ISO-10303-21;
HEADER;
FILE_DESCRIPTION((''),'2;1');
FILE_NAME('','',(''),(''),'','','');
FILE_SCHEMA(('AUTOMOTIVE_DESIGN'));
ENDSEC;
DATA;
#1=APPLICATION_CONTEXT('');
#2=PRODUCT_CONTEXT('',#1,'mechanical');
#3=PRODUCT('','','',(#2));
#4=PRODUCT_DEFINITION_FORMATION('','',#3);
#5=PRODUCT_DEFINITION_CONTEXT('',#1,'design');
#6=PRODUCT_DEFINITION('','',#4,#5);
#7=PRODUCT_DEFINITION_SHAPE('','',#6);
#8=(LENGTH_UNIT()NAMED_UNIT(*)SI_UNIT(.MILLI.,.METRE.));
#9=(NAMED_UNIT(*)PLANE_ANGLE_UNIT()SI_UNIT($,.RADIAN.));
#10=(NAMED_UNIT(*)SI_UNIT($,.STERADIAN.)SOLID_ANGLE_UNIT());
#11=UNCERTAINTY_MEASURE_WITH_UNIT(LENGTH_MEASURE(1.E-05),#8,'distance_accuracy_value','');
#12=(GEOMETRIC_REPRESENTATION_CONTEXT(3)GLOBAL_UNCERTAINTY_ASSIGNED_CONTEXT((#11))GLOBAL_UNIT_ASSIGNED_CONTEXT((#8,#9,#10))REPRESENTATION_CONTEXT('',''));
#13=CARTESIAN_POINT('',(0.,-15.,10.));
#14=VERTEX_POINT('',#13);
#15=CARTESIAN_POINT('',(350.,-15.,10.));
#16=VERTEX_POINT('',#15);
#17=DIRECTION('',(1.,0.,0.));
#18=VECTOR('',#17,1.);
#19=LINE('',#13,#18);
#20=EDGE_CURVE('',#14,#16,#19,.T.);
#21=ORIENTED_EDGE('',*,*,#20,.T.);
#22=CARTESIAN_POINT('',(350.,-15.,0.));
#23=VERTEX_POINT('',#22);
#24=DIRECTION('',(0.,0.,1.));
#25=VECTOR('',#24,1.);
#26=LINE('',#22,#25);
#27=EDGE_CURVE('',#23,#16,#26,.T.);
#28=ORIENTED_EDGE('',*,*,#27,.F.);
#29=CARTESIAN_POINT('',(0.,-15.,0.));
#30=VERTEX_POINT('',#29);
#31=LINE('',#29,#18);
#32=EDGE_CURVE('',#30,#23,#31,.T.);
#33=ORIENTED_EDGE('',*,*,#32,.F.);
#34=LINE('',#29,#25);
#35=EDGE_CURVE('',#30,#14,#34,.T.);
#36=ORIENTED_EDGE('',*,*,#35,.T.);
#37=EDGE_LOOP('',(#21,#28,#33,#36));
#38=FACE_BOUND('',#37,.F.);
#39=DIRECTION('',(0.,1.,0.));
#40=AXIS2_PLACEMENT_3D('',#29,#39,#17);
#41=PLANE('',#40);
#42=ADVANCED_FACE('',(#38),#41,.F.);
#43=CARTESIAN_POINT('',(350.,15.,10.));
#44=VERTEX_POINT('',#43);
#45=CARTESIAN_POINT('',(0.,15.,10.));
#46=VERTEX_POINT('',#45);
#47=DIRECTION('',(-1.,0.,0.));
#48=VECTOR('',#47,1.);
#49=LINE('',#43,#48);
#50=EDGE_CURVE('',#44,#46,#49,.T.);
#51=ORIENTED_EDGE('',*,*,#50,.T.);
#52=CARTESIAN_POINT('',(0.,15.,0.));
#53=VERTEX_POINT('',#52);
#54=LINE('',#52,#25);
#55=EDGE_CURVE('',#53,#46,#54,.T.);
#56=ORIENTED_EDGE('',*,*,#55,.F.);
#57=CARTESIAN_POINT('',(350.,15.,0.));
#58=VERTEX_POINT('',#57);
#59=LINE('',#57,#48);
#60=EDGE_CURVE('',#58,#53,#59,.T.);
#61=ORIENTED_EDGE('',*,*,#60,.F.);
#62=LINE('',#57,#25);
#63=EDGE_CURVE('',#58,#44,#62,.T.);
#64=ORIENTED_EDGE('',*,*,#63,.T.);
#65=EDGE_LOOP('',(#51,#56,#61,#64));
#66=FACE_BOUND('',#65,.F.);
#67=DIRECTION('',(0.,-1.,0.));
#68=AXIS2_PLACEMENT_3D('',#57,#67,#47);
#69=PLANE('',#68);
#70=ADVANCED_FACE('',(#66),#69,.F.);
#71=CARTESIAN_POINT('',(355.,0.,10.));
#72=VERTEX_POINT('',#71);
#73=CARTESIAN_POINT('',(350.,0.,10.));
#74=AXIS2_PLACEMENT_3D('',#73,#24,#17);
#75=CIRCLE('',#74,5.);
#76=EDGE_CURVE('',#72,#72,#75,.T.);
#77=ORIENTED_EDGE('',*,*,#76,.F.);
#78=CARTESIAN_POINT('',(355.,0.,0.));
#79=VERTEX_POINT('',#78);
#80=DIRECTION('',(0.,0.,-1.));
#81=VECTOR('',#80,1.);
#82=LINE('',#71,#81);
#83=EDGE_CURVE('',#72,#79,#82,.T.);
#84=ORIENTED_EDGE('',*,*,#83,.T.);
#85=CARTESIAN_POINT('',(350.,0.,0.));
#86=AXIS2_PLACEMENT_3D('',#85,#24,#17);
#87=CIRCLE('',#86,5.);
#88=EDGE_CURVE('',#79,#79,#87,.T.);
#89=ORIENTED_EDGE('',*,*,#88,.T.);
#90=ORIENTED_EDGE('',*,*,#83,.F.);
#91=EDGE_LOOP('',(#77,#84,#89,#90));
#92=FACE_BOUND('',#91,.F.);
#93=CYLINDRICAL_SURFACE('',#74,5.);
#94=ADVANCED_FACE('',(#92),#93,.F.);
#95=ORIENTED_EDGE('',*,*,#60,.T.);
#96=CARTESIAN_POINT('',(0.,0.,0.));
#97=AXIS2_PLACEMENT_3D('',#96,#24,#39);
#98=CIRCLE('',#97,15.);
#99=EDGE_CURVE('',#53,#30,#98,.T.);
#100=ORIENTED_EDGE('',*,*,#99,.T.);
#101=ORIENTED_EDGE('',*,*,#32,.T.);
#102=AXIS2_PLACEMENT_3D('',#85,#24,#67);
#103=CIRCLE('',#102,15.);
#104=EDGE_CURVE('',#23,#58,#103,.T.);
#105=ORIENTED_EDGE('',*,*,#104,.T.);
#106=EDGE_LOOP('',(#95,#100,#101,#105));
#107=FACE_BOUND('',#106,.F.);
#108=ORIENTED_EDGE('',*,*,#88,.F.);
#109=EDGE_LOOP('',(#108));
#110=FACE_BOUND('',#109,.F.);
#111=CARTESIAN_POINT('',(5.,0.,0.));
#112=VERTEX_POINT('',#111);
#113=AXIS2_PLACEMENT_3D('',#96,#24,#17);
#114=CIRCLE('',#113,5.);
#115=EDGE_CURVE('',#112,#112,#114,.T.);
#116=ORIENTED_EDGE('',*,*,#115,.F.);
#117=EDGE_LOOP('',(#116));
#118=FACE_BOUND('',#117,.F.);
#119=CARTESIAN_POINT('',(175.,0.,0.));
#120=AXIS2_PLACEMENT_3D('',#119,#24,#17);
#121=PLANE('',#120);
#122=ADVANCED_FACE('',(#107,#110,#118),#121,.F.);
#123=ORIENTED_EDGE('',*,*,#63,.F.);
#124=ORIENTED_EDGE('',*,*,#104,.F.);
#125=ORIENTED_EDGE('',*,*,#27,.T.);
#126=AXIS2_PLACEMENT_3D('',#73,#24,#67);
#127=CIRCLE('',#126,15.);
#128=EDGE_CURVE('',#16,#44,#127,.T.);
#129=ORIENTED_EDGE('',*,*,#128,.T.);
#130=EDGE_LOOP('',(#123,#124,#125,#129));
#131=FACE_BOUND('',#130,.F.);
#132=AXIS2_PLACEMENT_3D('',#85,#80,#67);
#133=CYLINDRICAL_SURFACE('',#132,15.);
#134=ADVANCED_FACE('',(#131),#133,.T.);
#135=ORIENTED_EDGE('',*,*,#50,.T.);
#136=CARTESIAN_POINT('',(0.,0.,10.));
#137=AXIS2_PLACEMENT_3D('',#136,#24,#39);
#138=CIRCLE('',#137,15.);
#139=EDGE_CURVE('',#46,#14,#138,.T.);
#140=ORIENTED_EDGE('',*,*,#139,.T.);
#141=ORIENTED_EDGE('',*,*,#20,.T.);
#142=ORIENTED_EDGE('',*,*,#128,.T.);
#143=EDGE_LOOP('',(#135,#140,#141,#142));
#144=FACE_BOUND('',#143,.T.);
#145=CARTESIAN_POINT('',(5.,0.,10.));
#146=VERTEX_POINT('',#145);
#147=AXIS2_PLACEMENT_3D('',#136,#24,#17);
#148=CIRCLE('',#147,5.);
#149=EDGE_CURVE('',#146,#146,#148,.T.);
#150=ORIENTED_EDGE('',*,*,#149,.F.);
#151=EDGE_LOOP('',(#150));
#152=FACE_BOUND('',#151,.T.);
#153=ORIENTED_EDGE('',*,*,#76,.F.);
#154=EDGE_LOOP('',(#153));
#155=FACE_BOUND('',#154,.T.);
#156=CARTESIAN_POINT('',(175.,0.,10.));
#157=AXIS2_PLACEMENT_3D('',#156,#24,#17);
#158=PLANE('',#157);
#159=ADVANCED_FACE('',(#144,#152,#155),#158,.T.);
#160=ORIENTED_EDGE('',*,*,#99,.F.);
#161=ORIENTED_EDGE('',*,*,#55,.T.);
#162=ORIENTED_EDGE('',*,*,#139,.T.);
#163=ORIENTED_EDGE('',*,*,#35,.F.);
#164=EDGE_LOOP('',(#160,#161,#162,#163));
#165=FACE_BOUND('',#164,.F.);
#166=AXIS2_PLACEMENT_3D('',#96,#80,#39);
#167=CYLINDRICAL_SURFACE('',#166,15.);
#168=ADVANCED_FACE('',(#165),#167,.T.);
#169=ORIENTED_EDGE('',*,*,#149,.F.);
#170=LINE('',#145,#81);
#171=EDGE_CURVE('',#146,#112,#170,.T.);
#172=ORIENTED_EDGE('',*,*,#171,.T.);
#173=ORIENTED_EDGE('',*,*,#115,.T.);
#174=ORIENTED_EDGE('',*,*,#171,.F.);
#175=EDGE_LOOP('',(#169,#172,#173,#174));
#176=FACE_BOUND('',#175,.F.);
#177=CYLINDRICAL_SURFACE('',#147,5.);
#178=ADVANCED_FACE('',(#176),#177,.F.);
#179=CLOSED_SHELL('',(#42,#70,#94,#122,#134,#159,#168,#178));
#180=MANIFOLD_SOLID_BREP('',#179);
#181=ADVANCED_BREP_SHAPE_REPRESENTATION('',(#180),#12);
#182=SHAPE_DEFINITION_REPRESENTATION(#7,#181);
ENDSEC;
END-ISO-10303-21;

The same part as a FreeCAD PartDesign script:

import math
import FreeCAD as App
import Part
import Sketcher
Q = App.Units.Quantity

doc = App.newDocument("Part")
body = doc.addObject("PartDesign::Body", "Body")

# Sketch on XY plane
sketch1 = body.newObject("Sketcher::SketchObject", "Sketch")
sketch1.AttachmentSupport = (doc.getObject("XY_Plane"), [""])
sketch1.MapMode = "FlatFace"
sketch1.addGeometry([
    Part.LineSegment(App.Vector(350, 15, 0), App.Vector(0, 15, 0)),
    Part.ArcOfCircle(Part.Circle(App.Vector(0, 0, 0), App.Vector(0, 0, 1), 15), math.radians(90), math.radians(270)),
    Part.LineSegment(App.Vector(0, -15, 0), App.Vector(350, -15, 0)),
    Part.ArcOfCircle(Part.Circle(App.Vector(350, 0, 0), App.Vector(0, 0, 1), 15), math.radians(-90), math.radians(90)),
], False)
sketch1.addConstraint([
    Sketcher.Constraint("Tangent", 0, 2, 1, 1),
    Sketcher.Constraint("Tangent", 1, 2, 2, 1),
    Sketcher.Constraint("Tangent", 2, 2, 3, 1),
    Sketcher.Constraint("Tangent", 3, 2, 0, 1),
    Sketcher.Constraint("Horizontal", 0),
    Sketcher.Constraint("Horizontal", 2),
    Sketcher.Constraint("Coincident", 1, 3, -1, 1),
    Sketcher.Constraint("Radius", 1, Q("15 mm")),
    Sketcher.Constraint("DistanceX", 0, 2, 0, 1, Q("350 mm")),
])
pad1 = body.newObject("PartDesign::Pad", "Pad")
pad1.Profile = sketch1
pad1.Length = 10

# Sketch on XY plane
sketch2 = body.newObject("Sketcher::SketchObject", "Sketch001")
sketch2.AttachmentSupport = (doc.getObject("XY_Plane"), [""])
sketch2.MapMode = "FlatFace"
sketch2.AttachmentOffset = App.Placement(App.Vector(0, 0, 10), App.Rotation())
sketch2.addGeometry([
    Part.Circle(App.Vector(0, 0, 0), App.Vector(0, 0, 1), 5),
    Part.Circle(App.Vector(350, 0, 0), App.Vector(0, 0, 1), 5),
], False)
sketch2.addConstraint([
    Sketcher.Constraint("Coincident", 0, 3, -1, 1),
    Sketcher.Constraint("Equal", 0, 1),
    Sketcher.Constraint("PointOnObject", 1, 3, -1),
    Sketcher.Constraint("Diameter", 0, Q("10 mm")),
    Sketcher.Constraint("DistanceX", -1, 1, 1, 3, Q("350 mm")),
])
pocket1 = body.newObject("PartDesign::Pocket", "Pocket")
pocket1.Profile = sketch2
pocket1.Type = "ThroughAll"

doc.recompute()
